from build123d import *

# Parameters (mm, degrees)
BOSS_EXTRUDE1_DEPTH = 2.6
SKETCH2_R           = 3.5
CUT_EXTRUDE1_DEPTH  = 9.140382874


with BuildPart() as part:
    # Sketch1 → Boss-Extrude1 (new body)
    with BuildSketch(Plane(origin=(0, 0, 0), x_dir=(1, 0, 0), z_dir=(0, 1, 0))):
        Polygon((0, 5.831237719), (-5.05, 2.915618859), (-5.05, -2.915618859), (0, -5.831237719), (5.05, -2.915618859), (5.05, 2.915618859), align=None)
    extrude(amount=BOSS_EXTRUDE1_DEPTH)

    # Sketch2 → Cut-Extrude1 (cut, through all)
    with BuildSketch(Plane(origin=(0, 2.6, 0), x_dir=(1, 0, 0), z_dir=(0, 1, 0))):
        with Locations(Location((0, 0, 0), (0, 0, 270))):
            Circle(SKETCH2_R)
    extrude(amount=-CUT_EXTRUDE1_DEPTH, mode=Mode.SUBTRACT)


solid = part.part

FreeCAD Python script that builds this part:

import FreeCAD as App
import Part
import Sketcher
Q = App.Units.Quantity


def add_polygon(sketch, points):
    """Adds a closed chain of lines whose ends are joined by coincident constraints."""
    first, n = sketch.GeometryCount, len(points)
    for a, b in zip(points, points[1:] + points[:1]):
        sketch.addGeometry(Part.LineSegment(App.Vector(*a, 0), App.Vector(*b, 0)), False)
    for i in range(n):
        sketch.addConstraint(Sketcher.Constraint("Coincident", first + i, 2, first + (i + 1) % n, 1))

doc = App.newDocument("Part")
params = doc.addObject("Spreadsheet::Sheet", "Params")
for row, (alias, value) in enumerate([
    ("pad1_length", "2.6 mm"),
    ("sketch2_diameter", "7 mm"),
], start=1):
    params.set(f"A{row}", alias)
    params.set(f"B{row}", "=" + value)
    params.setAlias(f"B{row}", alias)

body = doc.addObject("PartDesign::Body", "Body")

# Sketch on XZ plane
sketch1 = body.newObject("Sketcher::SketchObject", "Sketch")
sketch1.AttachmentSupport = (doc.getObject("XZ_Plane"), [""])
sketch1.MapMode = "FlatFace"
add_polygon(sketch1, [(0, -6), (-5, -3), (-5, 3), (0, 6), (5, 3), (5, -3)])  # lines 0-5
sketch1.addConstraint(Sketcher.Constraint("Vertical", 1))
sketch1.addConstraint(Sketcher.Constraint("Vertical", 4))
sketch1.addConstraint(Sketcher.Constraint("Symmetric", 0, 2, 3, 2, -1, 1))
sketch1.addConstraint(Sketcher.Constraint("Symmetric", 2, 2, 5, 2, -1, 1))
sketch1.addConstraint(Sketcher.Constraint("PointOnObject", 2, 2, -2))
sketch1.addConstraint(Sketcher.Constraint("Parallel", 2, 5))
sketch1.addConstraint(Sketcher.Constraint("Horizontal", 1, 2, 3, 2))
sketch1.addConstraint(Sketcher.Constraint("Angle", 0, Q("150 deg")))
sketch1.addConstraint(Sketcher.Constraint("DistanceX", 1, 2, 3, 2, Q("10.1 mm")))
sketch1.addConstraint(Sketcher.Constraint("DistanceY", 1, 1, 1, 2, Q("5.831238 mm")))
pad1 = body.newObject("PartDesign::Pad", "Pad")
pad1.Profile = sketch1
pad1.setExpression("Length", "Params.pad1_length")
pad1.Reversed = True

# Sketch on XZ plane
sketch2 = body.newObject("Sketcher::SketchObject", "Sketch001")
sketch2.AttachmentSupport = (doc.getObject("XZ_Plane"), [""])
sketch2.MapMode = "FlatFace"
sketch2.AttachmentOffset = App.Placement(App.Vector(0, 0, -2.6), App.Rotation())
sketch2.addGeometry(Part.Circle(App.Vector(0, 0, 0), App.Vector(0, 0, 1), 3.5), False)
sketch2.addConstraint(Sketcher.Constraint("Coincident", 0, 3, -1, 1))
sketch2.addConstraint(Sketcher.Constraint("Diameter", 0, Q("7 mm")))
sketch2.setExpression("Constraints[1]", "Params.sketch2_diameter")
pocket1 = body.newObject("PartDesign::Pocket", "Pocket")
pocket1.Profile = sketch2
pocket1.Type = "ThroughAll"
pocket1.Reversed = True

doc.recompute()
